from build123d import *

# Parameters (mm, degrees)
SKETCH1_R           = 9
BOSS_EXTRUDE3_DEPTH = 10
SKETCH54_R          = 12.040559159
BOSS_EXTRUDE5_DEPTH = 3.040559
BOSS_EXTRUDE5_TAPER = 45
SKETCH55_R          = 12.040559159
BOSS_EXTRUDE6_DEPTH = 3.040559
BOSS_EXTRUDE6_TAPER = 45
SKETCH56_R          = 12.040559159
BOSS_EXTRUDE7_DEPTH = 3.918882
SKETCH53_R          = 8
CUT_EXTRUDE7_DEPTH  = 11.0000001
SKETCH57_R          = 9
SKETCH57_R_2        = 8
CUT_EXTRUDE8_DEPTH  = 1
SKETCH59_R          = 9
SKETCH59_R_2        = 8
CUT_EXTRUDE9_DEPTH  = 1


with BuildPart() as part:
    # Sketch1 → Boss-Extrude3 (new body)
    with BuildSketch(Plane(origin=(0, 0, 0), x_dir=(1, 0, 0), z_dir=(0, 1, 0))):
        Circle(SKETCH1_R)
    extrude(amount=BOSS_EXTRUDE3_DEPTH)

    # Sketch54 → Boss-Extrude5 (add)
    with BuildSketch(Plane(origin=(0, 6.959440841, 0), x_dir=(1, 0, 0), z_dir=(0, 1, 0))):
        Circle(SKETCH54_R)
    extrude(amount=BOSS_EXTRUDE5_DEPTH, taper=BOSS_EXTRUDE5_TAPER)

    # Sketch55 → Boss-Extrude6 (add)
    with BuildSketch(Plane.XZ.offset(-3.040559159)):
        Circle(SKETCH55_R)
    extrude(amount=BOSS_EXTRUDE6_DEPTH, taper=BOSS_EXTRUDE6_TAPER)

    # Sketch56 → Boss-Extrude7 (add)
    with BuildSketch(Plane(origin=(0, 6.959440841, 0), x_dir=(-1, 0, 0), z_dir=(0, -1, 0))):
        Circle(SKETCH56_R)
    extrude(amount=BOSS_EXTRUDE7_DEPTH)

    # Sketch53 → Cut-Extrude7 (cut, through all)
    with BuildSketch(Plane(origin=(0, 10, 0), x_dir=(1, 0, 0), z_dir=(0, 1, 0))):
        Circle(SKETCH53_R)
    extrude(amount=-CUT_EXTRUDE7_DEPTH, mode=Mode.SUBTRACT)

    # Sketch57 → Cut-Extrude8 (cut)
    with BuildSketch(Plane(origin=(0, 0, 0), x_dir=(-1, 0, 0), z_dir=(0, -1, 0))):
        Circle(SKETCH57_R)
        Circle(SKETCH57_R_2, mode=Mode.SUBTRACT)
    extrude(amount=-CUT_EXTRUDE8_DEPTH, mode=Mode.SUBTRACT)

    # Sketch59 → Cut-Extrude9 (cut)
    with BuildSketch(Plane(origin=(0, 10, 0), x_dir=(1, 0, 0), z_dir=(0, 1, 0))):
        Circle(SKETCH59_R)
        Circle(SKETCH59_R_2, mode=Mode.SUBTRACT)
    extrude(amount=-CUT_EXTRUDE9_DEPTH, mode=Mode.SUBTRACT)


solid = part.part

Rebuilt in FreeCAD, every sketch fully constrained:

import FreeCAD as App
import Part
import Sketcher

doc = App.newDocument("Part")
body = doc.addObject("PartDesign::Body", "Body")

# Sketch on XZ plane
sketch1 = body.newObject("Sketcher::SketchObject", "Sketch")
sketch1.AttachmentSupport = (doc.getObject("XZ_Plane"), [""])
sketch1.MapMode = "FlatFace"
sketch1.addGeometry(Part.Circle(App.Vector(0, 0, 0), App.Vector(0, 0, 1), 9), False)
sketch1.addConstraint(Sketcher.Constraint("Coincident", 0, 3, -1, 1))
sketch1.addConstraint(Sketcher.Constraint("Diameter", 0, 18.0))
pad1 = body.newObject("PartDesign::Pad", "Pad")
pad1.Profile = sketch1
pad1.Length = 10
pad1.Reversed = True

# Sketch on XZ plane
sketch2 = body.newObject("Sketcher::SketchObject", "Sketch001")
sketch2.AttachmentSupport = (doc.getObject("XZ_Plane"), [""])
sketch2.MapMode = "FlatFace"
sketch2.AttachmentOffset = App.Placement(App.Vector(0, 0, -6.959441), App.Rotation())
sketch2.addGeometry(Part.Circle(App.Vector(0, 0, 0), App.Vector(0, 0, 1), 12.040559), False)
sketch2.addConstraint(Sketcher.Constraint("Coincident", 0, 3, -1, 1))
sketch2.addConstraint(Sketcher.Constraint("Diameter", 0, 24.081118))
pad2 = body.newObject("PartDesign::Pad", "Pad001")
pad2.Profile = sketch2
pad2.Length = 3.040559
pad2.Reversed = True
pad2.TaperAngle = -45

# Sketch on XZ plane
sketch3 = body.newObject("Sketcher::SketchObject", "Sketch002")
sketch3.AttachmentSupport = (doc.getObject("XZ_Plane"), [""])
sketch3.MapMode = "FlatFace"
sketch3.AttachmentOffset = App.Placement(App.Vector(0, 0, -3.040559), App.Rotation())
sketch3.addGeometry(Part.Circle(App.Vector(0, 0, 0), App.Vector(0, 0, 1), 12.040559), False)
sketch3.addConstraint(Sketcher.Constraint("Coincident", 0, 3, -1, 1))
sketch3.addConstraint(Sketcher.Constraint("Diameter", 0, 24.081118))
pad3 = body.newObject("PartDesign::Pad", "Pad002")
pad3.Profile = sketch3
pad3.Length = 3.040559
pad3.TaperAngle = -45

# Sketch on XZ plane
sketch4 = body.newObject("Sketcher::SketchObject", "Sketch003")
sketch4.AttachmentSupport = (doc.getObject("XZ_Plane"), [""])
sketch4.MapMode = "FlatFace"
sketch4.AttachmentOffset = App.Placement(App.Vector(0, 0, -6.959441), App.Rotation())
sketch4.addGeometry(Part.Circle(App.Vector(0, 0, 0), App.Vector(0, 0, 1), 12.040559), False)
sketch4.addConstraint(Sketcher.Constraint("Coincident", 0, 3, -1, 1))
sketch4.addConstraint(Sketcher.Constraint("Diameter", 0, 24.081118))
pad4 = body.newObject("PartDesign::Pad", "Pad003")
pad4.Profile = sketch4
pad4.Length = 3.918882

# Sketch on XZ plane
sketch5 = body.newObject("Sketcher::SketchObject", "Sketch004")
sketch5.AttachmentSupport = (doc.getObject("XZ_Plane"), [""])
sketch5.MapMode = "FlatFace"
sketch5.AttachmentOffset = App.Placement(App.Vector(0, 0, -10), App.Rotation())
sketch5.addGeometry(Part.Circle(App.Vector(0, 0, 0), App.Vector(0, 0, 1), 8), False)
sketch5.addConstraint(Sketcher.Constraint("Coincident", 0, 3, -1, 1))
sketch5.addConstraint(Sketcher.Constraint("Diameter", 0, 16.0))
pocket1 = body.newObject("PartDesign::Pocket", "Pocket")
pocket1.Profile = sketch5
pocket1.Type = "ThroughAll"
pocket1.Reversed = True

# Sketch on XZ plane
sketch6 = body.newObject("Sketcher::SketchObject", "Sketch005")
sketch6.AttachmentSupport = (doc.getObject("XZ_Plane"), [""])
sketch6.MapMode = "FlatFace"
sketch6.addGeometry(Part.Circle(App.Vector(0, 0, 0), App.Vector(0, 0, 1), 9), False)
sketch6.addGeometry(Part.Circle(App.Vector(0, 0, 0), App.Vector(0, 0, 1), 8), False)
sketch6.addConstraint(Sketcher.Constraint("Coincident", 0, 3, -1, 1))
sketch6.addConstraint(Sketcher.Constraint("Coincident", 1, 3, -1, 1))
sketch6.addConstraint(Sketcher.Constraint("Diameter", 0, 18.0))
sketch6.addConstraint(Sketcher.Constraint("Diameter", 1, 16.0))
pocket2 = body.newObject("PartDesign::Pocket", "Pocket001")
pocket2.Profile = sketch6
pocket2.Length = 1

# Sketch on XZ plane
sketch7 = body.newObject("Sketcher::SketchObject", "Sketch006")
sketch7.AttachmentSupport = (doc.getObject("XZ_Plane"), [""])
sketch7.MapMode = "FlatFace"
sketch7.AttachmentOffset = App.Placement(App.Vector(0, 0, -10), App.Rotation())
sketch7.addGeometry(Part.Circle(App.Vector(0, 0, 0), App.Vector(0, 0, 1), 9), False)
sketch7.addGeometry(Part.Circle(App.Vector(0, 0, 0), App.Vector(0, 0, 1), 8), False)
sketch7.addConstraint(Sketcher.Constraint("Coincident", 0, 3, -1, 1))
sketch7.addConstraint(Sketcher.Constraint("Coincident", 1, 3, -1, 1))
sketch7.addConstraint(Sketcher.Constraint("Diameter", 0, 18.0))
sketch7.addConstraint(Sketcher.Constraint("Diameter", 1, 16.0))
pocket3 = body.newObject("PartDesign::Pocket", "Pocket002")
pocket3.Profile = sketch7
pocket3.Length = 1
pocket3.Reversed = True

doc.recompute()
